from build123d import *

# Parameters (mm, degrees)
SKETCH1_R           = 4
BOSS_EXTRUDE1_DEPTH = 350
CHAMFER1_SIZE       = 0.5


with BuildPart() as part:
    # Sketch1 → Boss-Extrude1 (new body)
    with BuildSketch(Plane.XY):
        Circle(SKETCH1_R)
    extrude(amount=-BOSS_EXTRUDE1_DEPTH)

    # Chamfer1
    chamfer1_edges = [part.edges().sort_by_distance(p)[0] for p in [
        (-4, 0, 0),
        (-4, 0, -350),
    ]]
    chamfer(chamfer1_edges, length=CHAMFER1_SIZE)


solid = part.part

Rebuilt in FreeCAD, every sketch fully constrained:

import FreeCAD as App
import Part
import Sketcher
from FreeCAD import Vector


def edges_at(feature, points):
    """Names of the edges that pass closest to the given points."""
    edges = feature.Shape.Edges
    near = lambda p: min(range(len(edges)), key=lambda i: edges[i].distToShape(Part.Vertex(*p))[0])
    return sorted({f"Edge{near(p) + 1}" for p in points})

doc = App.newDocument("Part")
body = doc.addObject("PartDesign::Body", "Body")

sketch1 = body.newObject("Sketcher::SketchObject", "Sketch")
sketch1.AttachmentSupport = (doc.getObject("XY_Plane"), [""])
sketch1.MapMode = "FlatFace"
sketch1.addGeometry(Part.Circle(Vector(0, 0, 0), Vector(0, 0, 1), 4), False)
sketch1.addConstraint([
    Sketcher.Constraint("Coincident", 0, 3, -1, 1),
    Sketcher.Constraint("Diameter", 0, 8.0),
])
pad1 = body.newObject("PartDesign::Pad", "Pad")
pad1.Profile = sketch1
pad1.Length = 350
pad1.Reversed = True
doc.recompute()

chamfer = body.newObject("PartDesign::Chamfer", "Chamfer")
chamfer.Base = (pad1, edges_at(pad1, [(-4, 0, 0), (-4, 0, -350)]))
chamfer.Size = 0.5

doc.recompute()
